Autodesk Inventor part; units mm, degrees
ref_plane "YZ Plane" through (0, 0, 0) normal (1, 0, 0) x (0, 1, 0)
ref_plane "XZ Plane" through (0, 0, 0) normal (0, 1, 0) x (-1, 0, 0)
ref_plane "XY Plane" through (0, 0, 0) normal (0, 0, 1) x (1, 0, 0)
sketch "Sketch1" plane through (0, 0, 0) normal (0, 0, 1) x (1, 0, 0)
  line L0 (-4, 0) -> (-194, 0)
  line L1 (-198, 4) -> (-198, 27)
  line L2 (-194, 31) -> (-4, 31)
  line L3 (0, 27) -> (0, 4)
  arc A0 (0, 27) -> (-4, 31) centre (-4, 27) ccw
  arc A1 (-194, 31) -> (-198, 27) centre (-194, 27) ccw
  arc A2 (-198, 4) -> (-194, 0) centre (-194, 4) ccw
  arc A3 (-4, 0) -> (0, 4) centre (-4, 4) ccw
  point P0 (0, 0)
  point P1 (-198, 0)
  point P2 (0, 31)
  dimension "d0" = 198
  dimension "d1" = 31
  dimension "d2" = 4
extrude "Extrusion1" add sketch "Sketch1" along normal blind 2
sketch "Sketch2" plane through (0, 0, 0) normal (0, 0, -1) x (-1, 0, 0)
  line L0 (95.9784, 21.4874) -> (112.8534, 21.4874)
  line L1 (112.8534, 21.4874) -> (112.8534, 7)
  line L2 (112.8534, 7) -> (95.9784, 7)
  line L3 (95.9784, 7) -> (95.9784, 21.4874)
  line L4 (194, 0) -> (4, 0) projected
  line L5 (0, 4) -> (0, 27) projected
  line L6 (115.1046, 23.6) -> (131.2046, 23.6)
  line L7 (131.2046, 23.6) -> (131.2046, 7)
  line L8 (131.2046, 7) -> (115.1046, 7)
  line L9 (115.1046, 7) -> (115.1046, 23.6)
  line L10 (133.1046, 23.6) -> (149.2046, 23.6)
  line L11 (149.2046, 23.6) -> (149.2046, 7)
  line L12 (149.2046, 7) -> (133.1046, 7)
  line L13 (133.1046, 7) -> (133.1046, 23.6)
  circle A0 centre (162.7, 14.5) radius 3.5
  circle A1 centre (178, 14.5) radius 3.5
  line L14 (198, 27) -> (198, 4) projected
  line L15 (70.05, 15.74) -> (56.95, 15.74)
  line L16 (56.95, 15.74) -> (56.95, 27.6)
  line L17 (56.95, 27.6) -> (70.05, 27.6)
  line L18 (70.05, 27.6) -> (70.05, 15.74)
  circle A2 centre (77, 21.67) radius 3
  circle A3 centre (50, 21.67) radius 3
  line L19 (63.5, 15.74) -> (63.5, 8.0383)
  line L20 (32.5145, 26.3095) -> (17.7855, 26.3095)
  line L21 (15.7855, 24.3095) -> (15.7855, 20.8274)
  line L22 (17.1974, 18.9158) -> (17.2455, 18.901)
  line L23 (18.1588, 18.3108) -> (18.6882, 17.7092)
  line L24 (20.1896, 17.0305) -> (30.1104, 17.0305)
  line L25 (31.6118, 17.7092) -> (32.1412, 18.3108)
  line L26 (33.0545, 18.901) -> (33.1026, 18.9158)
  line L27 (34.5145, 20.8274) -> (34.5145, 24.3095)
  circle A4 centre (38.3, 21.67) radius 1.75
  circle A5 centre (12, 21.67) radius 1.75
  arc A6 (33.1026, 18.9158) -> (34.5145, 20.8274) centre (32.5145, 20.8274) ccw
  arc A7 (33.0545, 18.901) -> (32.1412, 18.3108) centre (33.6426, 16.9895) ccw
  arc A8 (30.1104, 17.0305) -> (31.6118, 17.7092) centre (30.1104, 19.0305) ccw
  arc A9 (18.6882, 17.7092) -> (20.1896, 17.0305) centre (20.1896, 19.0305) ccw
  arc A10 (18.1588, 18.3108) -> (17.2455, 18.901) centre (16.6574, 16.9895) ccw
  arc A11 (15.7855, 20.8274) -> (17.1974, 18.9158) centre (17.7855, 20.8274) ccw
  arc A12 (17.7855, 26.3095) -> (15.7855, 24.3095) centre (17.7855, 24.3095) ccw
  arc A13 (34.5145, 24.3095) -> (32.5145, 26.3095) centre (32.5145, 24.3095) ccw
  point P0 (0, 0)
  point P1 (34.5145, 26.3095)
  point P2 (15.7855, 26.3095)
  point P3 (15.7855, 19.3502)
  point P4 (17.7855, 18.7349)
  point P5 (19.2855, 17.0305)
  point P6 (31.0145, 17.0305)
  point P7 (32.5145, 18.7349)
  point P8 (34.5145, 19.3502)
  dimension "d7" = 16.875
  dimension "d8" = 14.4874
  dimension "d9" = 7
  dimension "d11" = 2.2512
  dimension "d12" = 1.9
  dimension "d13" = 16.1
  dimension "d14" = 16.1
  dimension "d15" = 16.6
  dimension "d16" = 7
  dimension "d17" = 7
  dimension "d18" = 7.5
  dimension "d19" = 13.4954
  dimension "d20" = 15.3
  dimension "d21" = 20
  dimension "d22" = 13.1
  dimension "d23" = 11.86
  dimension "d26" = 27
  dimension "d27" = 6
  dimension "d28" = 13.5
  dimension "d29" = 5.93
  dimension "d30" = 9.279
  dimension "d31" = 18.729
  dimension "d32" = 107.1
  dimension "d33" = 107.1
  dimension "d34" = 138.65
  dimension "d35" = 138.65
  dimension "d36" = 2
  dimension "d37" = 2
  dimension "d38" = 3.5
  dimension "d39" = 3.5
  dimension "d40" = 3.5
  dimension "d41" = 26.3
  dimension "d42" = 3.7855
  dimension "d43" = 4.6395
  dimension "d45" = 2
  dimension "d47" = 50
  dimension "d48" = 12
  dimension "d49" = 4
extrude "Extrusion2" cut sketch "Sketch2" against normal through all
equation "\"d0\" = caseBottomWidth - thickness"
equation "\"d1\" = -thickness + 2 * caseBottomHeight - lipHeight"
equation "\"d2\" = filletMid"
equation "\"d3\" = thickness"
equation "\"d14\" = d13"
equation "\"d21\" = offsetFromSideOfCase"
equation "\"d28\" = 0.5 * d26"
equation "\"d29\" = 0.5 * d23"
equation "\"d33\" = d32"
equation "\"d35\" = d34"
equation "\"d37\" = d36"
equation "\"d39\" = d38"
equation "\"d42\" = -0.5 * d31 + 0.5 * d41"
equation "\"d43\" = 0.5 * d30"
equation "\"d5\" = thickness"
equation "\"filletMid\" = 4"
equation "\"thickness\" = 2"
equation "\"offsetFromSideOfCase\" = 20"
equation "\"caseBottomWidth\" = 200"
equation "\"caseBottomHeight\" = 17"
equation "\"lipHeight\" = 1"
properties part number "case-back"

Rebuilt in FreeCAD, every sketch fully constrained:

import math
import FreeCAD as App
import Part
import Sketcher

V = App.Vector

doc = App.newDocument("Part")
body = doc.addObject("PartDesign::Body", "Body")

# Sketch on XY plane
sketch1 = doc.addObject("Sketcher::SketchObject", "Sketch")
body.addObject(sketch1)
sketch1.AttachmentSupport = (doc.XY_Plane, [""])
sketch1.MapMode = "FlatFace"
sketch1.addGeometry(Part.LineSegment(V(-194, 0, 0), V(-4, 0, 0)), False)
sketch1.addGeometry(Part.ArcOfCircle(Part.Circle(V(-4, 4, 0), V(0, 0, 1), 4), math.radians(-90), math.radians(0)), False)
sketch1.addGeometry(Part.LineSegment(V(0, 4, 0), V(0, 27, 0)), False)
sketch1.addGeometry(Part.ArcOfCircle(Part.Circle(V(-4, 27, 0), V(0, 0, 1), 4), math.radians(0), math.radians(90)), False)
sketch1.addGeometry(Part.LineSegment(V(-4, 31, 0), V(-194, 31, 0)), False)
sketch1.addGeometry(Part.ArcOfCircle(Part.Circle(V(-194, 27, 0), V(0, 0, 1), 4), math.radians(90), math.radians(180)), False)
sketch1.addGeometry(Part.LineSegment(V(-198, 27, 0), V(-198, 4, 0)), False)
sketch1.addGeometry(Part.ArcOfCircle(Part.Circle(V(-194, 4, 0), V(0, 0, 1), 4), math.radians(180), math.radians(270)), False)
sketch1.addConstraint(Sketcher.Constraint("Tangent", 0, 2, 1, 1))
sketch1.addConstraint(Sketcher.Constraint("Tangent", 1, 2, 2, 1))
sketch1.addConstraint(Sketcher.Constraint("Tangent", 2, 2, 3, 1))
sketch1.addConstraint(Sketcher.Constraint("Tangent", 3, 2, 4, 1))
sketch1.addConstraint(Sketcher.Constraint("Tangent", 4, 2, 5, 1))
sketch1.addConstraint(Sketcher.Constraint("Tangent", 5, 2, 6, 1))
sketch1.addConstraint(Sketcher.Constraint("Tangent", 6, 2, 7, 1))
sketch1.addConstraint(Sketcher.Constraint("Tangent", 7, 2, 0, 1))
sketch1.addConstraint(Sketcher.Constraint("Horizontal", 0))
sketch1.addConstraint(Sketcher.Constraint("Vertical", 2))
sketch1.addConstraint(Sketcher.Constraint("Horizontal", 4))
sketch1.addConstraint(Sketcher.Constraint("Vertical", 6))
sketch1.addConstraint(Sketcher.Constraint("Equal", 1, 3))
sketch1.addConstraint(Sketcher.Constraint("Equal", 3, 5))
sketch1.addConstraint(Sketcher.Constraint("Equal", 5, 7))
sketch1.addConstraint(Sketcher.Constraint("PointOnObject", 0, 2, -1))
sketch1.addConstraint(Sketcher.Constraint("PointOnObject", 1, 2, -2))
sketch1.addConstraint(Sketcher.Constraint("Radius", 1, 4.0))
sketch1.addConstraint(Sketcher.Constraint("DistanceY", -1, 1, 3, 2, 31.0))
sketch1.addConstraint(Sketcher.Constraint("DistanceX", 5, 2, -1, 1, 198.0))
pad1 = doc.addObject("PartDesign::Pad", "Pad")
body.addObject(pad1)
pad1.Profile = sketch1
pad1.Length = 2

# Sketch on XY plane
sketch2 = doc.addObject("Sketcher::SketchObject", "Sketch001")
body.addObject(sketch2)
sketch2.AttachmentSupport = (doc.XY_Plane, [""])
sketch2.MapMode = "FlatFace"
sketch2.addGeometry(Part.LineSegment(V(-112.8534, 21.4874, 0), V(-95.9784, 21.4874, 0)), False)
sketch2.addGeometry(Part.LineSegment(V(-95.9784, 21.4874, 0), V(-95.9784, 7, 0)), False)
sketch2.addGeometry(Part.LineSegment(V(-95.9784, 7, 0), V(-112.8534, 7, 0)), False)
sketch2.addGeometry(Part.LineSegment(V(-112.8534, 7, 0), V(-112.8534, 21.4874, 0)), False)
sketch2.addGeometry(Part.LineSegment(V(-131.2046, 23.6, 0), V(-115.1046, 23.6, 0)), False)
sketch2.addGeometry(Part.LineSegment(V(-115.1046, 23.6, 0), V(-115.1046, 7, 0)), False)
sketch2.addGeometry(Part.LineSegment(V(-115.1046, 7, 0), V(-131.2046, 7, 0)), False)
sketch2.addGeometry(Part.LineSegment(V(-131.2046, 7, 0), V(-131.2046, 23.6, 0)), False)
sketch2.addGeometry(Part.LineSegment(V(-149.2046, 23.6, 0), V(-133.1046, 23.6, 0)), False)
sketch2.addGeometry(Part.LineSegment(V(-133.1046, 23.6, 0), V(-133.1046, 7, 0)), False)
sketch2.addGeometry(Part.LineSegment(V(-133.1046, 7, 0), V(-149.2046, 7, 0)), False)
sketch2.addGeometry(Part.LineSegment(V(-149.2046, 7, 0), V(-149.2046, 23.6, 0)), False)
sketch2.addGeometry(Part.Circle(V(-162.7, 14.5, 0), V(0, 0, 1), 3.5), False)
sketch2.addGeometry(Part.Circle(V(-178, 14.5, 0), V(0, 0, 1), 3.5), False)
sketch2.addGeometry(Part.LineSegment(V(-56.95, 15.74, 0), V(-70.05, 15.74, 0)), False)
sketch2.addGeometry(Part.LineSegment(V(-70.05, 15.74, 0), V(-70.05, 27.6, 0)), False)
sketch2.addGeometry(Part.LineSegment(V(-70.05, 27.6, 0), V(-56.95, 27.6, 0)), False)
sketch2.addGeometry(Part.LineSegment(V(-56.95, 27.6, 0), V(-56.95, 15.74, 0)), False)
sketch2.addGeometry(Part.Circle(V(-77, 21.67, 0), V(0, 0, 1), 3), False)
sketch2.addGeometry(Part.Circle(V(-50, 21.67, 0), V(0, 0, 1), 3), False)
sketch2.addGeometry(Part.ArcOfCircle(Part.Circle(V(-32.5145, 24.3095, 0), V(0, 0, 1), 2), math.radians(90), math.radians(180)), False)
sketch2.addGeometry(Part.LineSegment(V(-32.5145, 26.3095, 0), V(-17.7855, 26.3095, 0)), False)
sketch2.addGeometry(Part.ArcOfCircle(Part.Circle(V(-17.7855, 24.3095, 0), V(0, 0, 1), 2), math.radians(0), math.radians(90)), False)
sketch2.addGeometry(Part.LineSegment(V(-15.7855, 24.3095, 0), V(-15.7855, 20.8274, 0)), False)
sketch2.addGeometry(Part.ArcOfCircle(Part.Circle(V(-17.7855, 20.8274, 0), V(0, 0, 1), 2), math.radians(-72.899588), math.radians(0)), False)
sketch2.addGeometry(Part.LineSegment(V(-17.1974, 18.9158, 0), V(-17.2455, 18.901, 0)), False)
sketch2.addGeometry(Part.ArcOfCircle(Part.Circle(V(-16.658147, 16.990367, 0), V(0, 0, 1), 1.998875), math.radians(107.088087), math.radians(138.655263)), False)
sketch2.addGeometry(Part.LineSegment(V(-18.1588, 18.3108, 0), V(-18.6882, 17.7092, 0)), False)
sketch2.addGeometry(Part.ArcOfCircle(Part.Circle(V(-20.1896, 19.0305, 0), V(0, 0, 1), 2.000009), math.radians(-90), math.radians(-41.34924)), False)
sketch2.addGeometry(Part.LineSegment(V(-20.1896, 17.0305, 0), V(-30.1104, 17.0305, 0)), False)
sketch2.addGeometry(Part.ArcOfCircle(Part.Circle(V(-30.1104, 19.0305, 0), V(0, 0, 1), 2), math.radians(-138.65076), math.radians(-90)), False)
sketch2.addGeometry(Part.LineSegment(V(-31.6118, 17.7092, 0), V(-32.1412, 18.3108, 0)), False)
sketch2.addGeometry(Part.ArcOfCircle(Part.Circle(V(-33.643084, 16.988461, 0), V(0, 0, 1), 2.001059), math.radians(41.362407), math.radians(72.894243)), False)
sketch2.addGeometry(Part.LineSegment(V(-33.0545, 18.901, 0), V(-33.1026, 18.9158, 0)), False)
sketch2.addGeometry(Part.ArcOfCircle(Part.Circle(V(-32.5145, 20.8274, 0), V(0, 0, 1), 2.000019), math.radians(180), math.radians(252.899588)), False)
sketch2.addGeometry(Part.LineSegment(V(-34.5145, 20.8274, 0), V(-34.5145, 24.3095, 0)), False)
sketch2.addGeometry(Part.Circle(V(-38.3, 21.67, 0), V(0, 0, 1), 1.75), False)
sketch2.addGeometry(Part.Circle(V(-12, 21.67, 0), V(0, 0, 1), 1.75), False)
sketch2.addConstraint(Sketcher.Constraint("Coincident", 0, 2, 1, 1))
sketch2.addConstraint(Sketcher.Constraint("Coincident", 1, 2, 2, 1))
sketch2.addConstraint(Sketcher.Constraint("Coincident", 2, 2, 3, 1))
sketch2.addConstraint(Sketcher.Constraint("Coincident", 3, 2, 0, 1))
sketch2.addConstraint(Sketcher.Constraint("Coincident", 4, 2, 5, 1))
sketch2.addConstraint(Sketcher.Constraint("Coincident", 5, 2, 6, 1))
sketch2.addConstraint(Sketcher.Constraint("Coincident", 6, 2, 7, 1))
sketch2.addConstraint(Sketcher.Constraint("Coincident", 7, 2, 4, 1))
sketch2.addConstraint(Sketcher.Constraint("Coincident", 8, 2, 9, 1))
sketch2.addConstraint(Sketcher.Constraint("Coincident", 9, 2, 10, 1))
sketch2.addConstraint(Sketcher.Constraint("Coincident", 10, 2, 11, 1))
sketch2.addConstraint(Sketcher.Constraint("Coincident", 11, 2, 8, 1))
sketch2.addConstraint(Sketcher.Constraint("Coincident", 14, 2, 15, 1))
sketch2.addConstraint(Sketcher.Constraint("Coincident", 15, 2, 16, 1))
sketch2.addConstraint(Sketcher.Constraint("Coincident", 16, 2, 17, 1))
sketch2.addConstraint(Sketcher.Constraint("Coincident", 17, 2, 14, 1))
sketch2.addConstraint(Sketcher.Constraint("Coincident", 20, 1, 21, 1))
sketch2.addConstraint(Sketcher.Constraint("Coincident", 21, 2, 22, 2))
sketch2.addConstraint(Sketcher.Constraint("Coincident", 22, 1, 23, 1))
sketch2.addConstraint(Sketcher.Constraint("Coincident", 23, 2, 24, 2))
sketch2.addConstraint(Sketcher.Constraint("Coincident", 24, 1, 25, 1))
sketch2.addConstraint(Sketcher.Constraint("Coincident", 25, 2, 26, 1))
sketch2.addConstraint(Sketcher.Constraint("Coincident", 26, 2, 27, 1))
sketch2.addConstraint(Sketcher.Constraint("Coincident", 27, 2, 28, 2))
sketch2.addConstraint(Sketcher.Constraint("Coincident", 28, 1, 29, 1))
sketch2.addConstraint(Sketcher.Constraint("Coincident", 29, 2, 30, 2))
sketch2.addConstraint(Sketcher.Constraint("Coincident", 30, 1, 31, 1))
sketch2.addConstraint(Sketcher.Constraint("Coincident", 31, 2, 32, 1))
sketch2.addConstraint(Sketcher.Constraint("Coincident", 32, 2, 33, 1))
sketch2.addConstraint(Sketcher.Constraint("Coincident", 33, 2, 34, 2))
sketch2.addConstraint(Sketcher.Constraint("Coincident", 34, 1, 35, 1))
sketch2.addConstraint(Sketcher.Constraint("Coincident", 35, 2, 20, 2))
sketch2.addConstraint(Sketcher.Constraint("Horizontal", 0))
sketch2.addConstraint(Sketcher.Constraint("Vertical", 1))
sketch2.addConstraint(Sketcher.Constraint("Horizontal", 2))
sketch2.addConstraint(Sketcher.Constraint("Vertical", 3))
sketch2.addConstraint(Sketcher.Constraint("Horizontal", 4))
sketch2.addConstraint(Sketcher.Constraint("Vertical", 5))
sketch2.addConstraint(Sketcher.Constraint("Horizontal", 6))
sketch2.addConstraint(Sketcher.Constraint("Vertical", 7))
sketch2.addConstraint(Sketcher.Constraint("Horizontal", 8))
sketch2.addConstraint(Sketcher.Constraint("Vertical", 9))
sketch2.addConstraint(Sketcher.Constraint("Horizontal", 10))
sketch2.addConstraint(Sketcher.Constraint("Vertical", 11))
sketch2.addConstraint(Sketcher.Constraint("Horizontal", 14))
sketch2.addConstraint(Sketcher.Constraint("Vertical", 15))
sketch2.addConstraint(Sketcher.Constraint("Horizontal", 16))
sketch2.addConstraint(Sketcher.Constraint("Vertical", 17))
sketch2.addConstraint(Sketcher.Constraint("Horizontal", 21))
sketch2.addConstraint(Sketcher.Constraint("Vertical", 23))
sketch2.addConstraint(Sketcher.Constraint("Horizontal", 29))
sketch2.addConstraint(Sketcher.Constraint("Vertical", 35))
sketch2.addConstraint(Sketcher.Constraint("Diameter", 12, 7.0))
sketch2.addConstraint(Sketcher.Constraint("Diameter", 13, 7.0))
sketch2.addConstraint(Sketcher.Constraint("Diameter", 18, 6.0))
sketch2.addConstraint(Sketcher.Constraint("Diameter", 19, 6.0))
sketch2.addConstraint(Sketcher.Constraint("Radius", 20, 2.0))
sketch2.addConstraint(Sketcher.Constraint("Radius", 22, 2.0))
sketch2.addConstraint(Sketcher.Constraint("Radius", 24, 2.0))
sketch2.addConstraint(Sketcher.Constraint("Radius", 28, 2.0))
sketch2.addConstraint(Sketcher.Constraint("Radius", 30, 2.0))
sketch2.addConstraint(Sketcher.Constraint("Radius", 34, 2.0))
sketch2.addConstraint(Sketcher.Constraint("Diameter", 36, 3.5))
sketch2.addConstraint(Sketcher.Constraint("Diameter", 37, 3.5))
sketch2.addConstraint(Sketcher.Constraint("DistanceX", 4, 1, 4, 2, 16.1))
sketch2.addConstraint(Sketcher.Constraint("DistanceX", 8, 1, 8, 2, 16.1))
sketch2.addConstraint(Sketcher.Constraint("DistanceX", 14, 2, 14, 1, 13.1))
sketch2.addConstraint(Sketcher.Constraint("DistanceY", 5, 2, 5, 1, 16.6))
sketch2.addConstraint(Sketcher.Constraint("DistanceY", 9, 2, 9, 1, 16.6))
sketch2.addConstraint(Sketcher.Constraint("DistanceX", 19, 3, -1, 1, 50.0))
sketch2.addConstraint(Sketcher.Constraint("DistanceX", 37, 3, -1, 1, 12.0))
sketch2.addConstraint(Sketcher.Constraint("DistanceY", -1, 1, 1, 2, 7.0))
sketch2.addConstraint(Sketcher.Constraint("DistanceY", -1, 1, 5, 2, 7.0))
sketch2.addConstraint(Sketcher.Constraint("DistanceY", -1, 1, 9, 2, 7.0))
sketch2.addConstraint(Sketcher.Constraint("DistanceX", 18, 3, 19, 3, 27.0))
sketch2.addConstraint(Sketcher.Constraint("DistanceX", 21, 2, 22, 1, 2.0))
sketch2.addConstraint(Sketcher.Constraint("DistanceY", 22, 1, 21, 2, 2.0))
sketch2.addConstraint(Sketcher.Constraint("DistanceX", 35, 2, 20, 1, 2.0))
sketch2.addConstraint(Sketcher.Constraint("DistanceY", 35, 2, 20, 1, 2.0))
sketch2.addConstraint(Sketcher.Constraint("DistanceY", 15, 1, 15, 2, 11.86))
sketch2.addConstraint(Sketcher.Constraint("DistanceX", 13, 3, 12, 3, 15.3))
sketch2.addConstraint(Sketcher.Constraint("DistanceY", 2, 2, 12, 3, 7.5))
sketch2.addConstraint(Sketcher.Constraint("DistanceX", 8, 2, 7, 2, 1.9))
sketch2.addConstraint(Sketcher.Constraint("DistanceX", 0, 1, 0, 2, 16.875))
sketch2.addConstraint(Sketcher.Constraint("DistanceY", 14, 2, 18, 3, 5.93))
sketch2.addConstraint(Sketcher.Constraint("DistanceY", 14, 2, 19, 3, 5.93))
sketch2.addConstraint(Sketcher.Constraint("DistanceY", 14, 2, 36, 3, 5.93))
sketch2.addConstraint(Sketcher.Constraint("DistanceY", 1, 2, 1, 1, 14.4874))
sketch2.addConstraint(Sketcher.Constraint("DistanceX", 13, 3, -1, 1, 178.0))
sketch2.addConstraint(Sketcher.Constraint("Radius", 32, 2.001))
sketch2.addConstraint(Sketcher.Constraint("DistanceY", -1, 1, 13, 3, 14.5))
sketch2.addConstraint(Sketcher.Constraint("DistanceX", 36, 3, -1, 1, 38.3))
sketch2.addConstraint(Sketcher.Constraint("DistanceY", -1, 1, 15, 2, 27.6))
sketch2.addConstraint(Sketcher.Constraint("Radius", 26, 1.9989))
sketch2.addConstraint(Sketcher.Constraint("DistanceX", 4, 2, 3, 2, 2.2512))
sketch2.addConstraint(Sketcher.Constraint("DistanceX", 12, 3, 10, 2, 13.4954))
sketch2.addConstraint(Sketcher.Constraint("DistanceY", 36, 3, 20, 1, 4.6395))
sketch2.addConstraint(Sketcher.Constraint("DistanceY", 37, 3, 21, 2, 4.6395))
sketch2.addConstraint(Sketcher.Constraint("DistanceX", 22, 1, 37, 3, 3.7855))
sketch2.addConstraint(Sketcher.Constraint("DistanceY", 29, 2, 36, 3, 4.6395))
sketch2.addConstraint(Sketcher.Constraint("DistanceX", 36, 3, 34, 1, 3.7855))
sketch2.addConstraint(Sketcher.Constraint("DistanceY", 23, 2, 23, 1, 3.482))
sketch2.addConstraint(Sketcher.Constraint("DistanceY", 35, 1, 35, 2, 3.482))
sketch2.addConstraint(Sketcher.Constraint("DistanceX", 14, 2, -1, 1, 70.05))
sketch2.addConstraint(Sketcher.Constraint("DistanceY", 34, 3, 0, 2, 0.66))
sketch2.addConstraint(Sketcher.Constraint("DistanceX", 24, 3, 25, 2, 0.54))
sketch2.addConstraint(Sketcher.Constraint("DistanceX", 27, 2, 26, 3, 2.03))
sketch2.addConstraint(Sketcher.Constraint("DistanceX", 32, 2, 34, 3, 0.54))
sketch2.addConstraint(Sketcher.Constraint("DistanceX", 29, 2, 29, 1, 9.9208))
sketch2.addConstraint(Sketcher.Constraint("DistanceX", 32, 3, -1, 1, 33.643))
sketch2.addConstraint(Sketcher.Constraint("DistanceY", -1, 1, 25, 2, 18.901))
sketch2.addConstraint(Sketcher.Constraint("DistanceY", -1, 1, 32, 2, 18.901))
sketch2.addConstraint(Sketcher.Constraint("DistanceY", 24, 3, 22, 3, 3.482))
sketch2.addConstraint(Sketcher.Constraint("DistanceY", 26, 3, 24, 3, 3.837))
sketch2.addConstraint(Sketcher.Constraint("DistanceX", 28, 3, 24, 3, 2.404))
sketch2.addConstraint(Sketcher.Constraint("DistanceX", 20, 3, 30, 3, 2.404))
sketch2.addConstraint(Sketcher.Constraint("DistanceX", 24, 3, 24, 1, 0.588))
sketch2.addConstraint(Sketcher.Constraint("DistanceY", 26, 2, 24, 1, 0.605))
sketch2.addConstraint(Sketcher.Constraint("DistanceX", 28, 1, 25, 2, 2.944))
sketch2.addConstraint(Sketcher.Constraint("DistanceX", 32, 3, 31, 2, 1.502))
sketch2.addConstraint(Sketcher.Constraint("DistanceX", 33, 2, 32, 2, 0.048))
sketch2.addConstraint(Sketcher.Constraint("Distance", 31, 0.8014))
pocket1 = doc.addObject("PartDesign::Pocket", "Pocket")
body.addObject(pocket1)
pocket1.Profile = sketch2
pocket1.Type = "ThroughAll"
pocket1.Reversed = True

doc.recompute()
